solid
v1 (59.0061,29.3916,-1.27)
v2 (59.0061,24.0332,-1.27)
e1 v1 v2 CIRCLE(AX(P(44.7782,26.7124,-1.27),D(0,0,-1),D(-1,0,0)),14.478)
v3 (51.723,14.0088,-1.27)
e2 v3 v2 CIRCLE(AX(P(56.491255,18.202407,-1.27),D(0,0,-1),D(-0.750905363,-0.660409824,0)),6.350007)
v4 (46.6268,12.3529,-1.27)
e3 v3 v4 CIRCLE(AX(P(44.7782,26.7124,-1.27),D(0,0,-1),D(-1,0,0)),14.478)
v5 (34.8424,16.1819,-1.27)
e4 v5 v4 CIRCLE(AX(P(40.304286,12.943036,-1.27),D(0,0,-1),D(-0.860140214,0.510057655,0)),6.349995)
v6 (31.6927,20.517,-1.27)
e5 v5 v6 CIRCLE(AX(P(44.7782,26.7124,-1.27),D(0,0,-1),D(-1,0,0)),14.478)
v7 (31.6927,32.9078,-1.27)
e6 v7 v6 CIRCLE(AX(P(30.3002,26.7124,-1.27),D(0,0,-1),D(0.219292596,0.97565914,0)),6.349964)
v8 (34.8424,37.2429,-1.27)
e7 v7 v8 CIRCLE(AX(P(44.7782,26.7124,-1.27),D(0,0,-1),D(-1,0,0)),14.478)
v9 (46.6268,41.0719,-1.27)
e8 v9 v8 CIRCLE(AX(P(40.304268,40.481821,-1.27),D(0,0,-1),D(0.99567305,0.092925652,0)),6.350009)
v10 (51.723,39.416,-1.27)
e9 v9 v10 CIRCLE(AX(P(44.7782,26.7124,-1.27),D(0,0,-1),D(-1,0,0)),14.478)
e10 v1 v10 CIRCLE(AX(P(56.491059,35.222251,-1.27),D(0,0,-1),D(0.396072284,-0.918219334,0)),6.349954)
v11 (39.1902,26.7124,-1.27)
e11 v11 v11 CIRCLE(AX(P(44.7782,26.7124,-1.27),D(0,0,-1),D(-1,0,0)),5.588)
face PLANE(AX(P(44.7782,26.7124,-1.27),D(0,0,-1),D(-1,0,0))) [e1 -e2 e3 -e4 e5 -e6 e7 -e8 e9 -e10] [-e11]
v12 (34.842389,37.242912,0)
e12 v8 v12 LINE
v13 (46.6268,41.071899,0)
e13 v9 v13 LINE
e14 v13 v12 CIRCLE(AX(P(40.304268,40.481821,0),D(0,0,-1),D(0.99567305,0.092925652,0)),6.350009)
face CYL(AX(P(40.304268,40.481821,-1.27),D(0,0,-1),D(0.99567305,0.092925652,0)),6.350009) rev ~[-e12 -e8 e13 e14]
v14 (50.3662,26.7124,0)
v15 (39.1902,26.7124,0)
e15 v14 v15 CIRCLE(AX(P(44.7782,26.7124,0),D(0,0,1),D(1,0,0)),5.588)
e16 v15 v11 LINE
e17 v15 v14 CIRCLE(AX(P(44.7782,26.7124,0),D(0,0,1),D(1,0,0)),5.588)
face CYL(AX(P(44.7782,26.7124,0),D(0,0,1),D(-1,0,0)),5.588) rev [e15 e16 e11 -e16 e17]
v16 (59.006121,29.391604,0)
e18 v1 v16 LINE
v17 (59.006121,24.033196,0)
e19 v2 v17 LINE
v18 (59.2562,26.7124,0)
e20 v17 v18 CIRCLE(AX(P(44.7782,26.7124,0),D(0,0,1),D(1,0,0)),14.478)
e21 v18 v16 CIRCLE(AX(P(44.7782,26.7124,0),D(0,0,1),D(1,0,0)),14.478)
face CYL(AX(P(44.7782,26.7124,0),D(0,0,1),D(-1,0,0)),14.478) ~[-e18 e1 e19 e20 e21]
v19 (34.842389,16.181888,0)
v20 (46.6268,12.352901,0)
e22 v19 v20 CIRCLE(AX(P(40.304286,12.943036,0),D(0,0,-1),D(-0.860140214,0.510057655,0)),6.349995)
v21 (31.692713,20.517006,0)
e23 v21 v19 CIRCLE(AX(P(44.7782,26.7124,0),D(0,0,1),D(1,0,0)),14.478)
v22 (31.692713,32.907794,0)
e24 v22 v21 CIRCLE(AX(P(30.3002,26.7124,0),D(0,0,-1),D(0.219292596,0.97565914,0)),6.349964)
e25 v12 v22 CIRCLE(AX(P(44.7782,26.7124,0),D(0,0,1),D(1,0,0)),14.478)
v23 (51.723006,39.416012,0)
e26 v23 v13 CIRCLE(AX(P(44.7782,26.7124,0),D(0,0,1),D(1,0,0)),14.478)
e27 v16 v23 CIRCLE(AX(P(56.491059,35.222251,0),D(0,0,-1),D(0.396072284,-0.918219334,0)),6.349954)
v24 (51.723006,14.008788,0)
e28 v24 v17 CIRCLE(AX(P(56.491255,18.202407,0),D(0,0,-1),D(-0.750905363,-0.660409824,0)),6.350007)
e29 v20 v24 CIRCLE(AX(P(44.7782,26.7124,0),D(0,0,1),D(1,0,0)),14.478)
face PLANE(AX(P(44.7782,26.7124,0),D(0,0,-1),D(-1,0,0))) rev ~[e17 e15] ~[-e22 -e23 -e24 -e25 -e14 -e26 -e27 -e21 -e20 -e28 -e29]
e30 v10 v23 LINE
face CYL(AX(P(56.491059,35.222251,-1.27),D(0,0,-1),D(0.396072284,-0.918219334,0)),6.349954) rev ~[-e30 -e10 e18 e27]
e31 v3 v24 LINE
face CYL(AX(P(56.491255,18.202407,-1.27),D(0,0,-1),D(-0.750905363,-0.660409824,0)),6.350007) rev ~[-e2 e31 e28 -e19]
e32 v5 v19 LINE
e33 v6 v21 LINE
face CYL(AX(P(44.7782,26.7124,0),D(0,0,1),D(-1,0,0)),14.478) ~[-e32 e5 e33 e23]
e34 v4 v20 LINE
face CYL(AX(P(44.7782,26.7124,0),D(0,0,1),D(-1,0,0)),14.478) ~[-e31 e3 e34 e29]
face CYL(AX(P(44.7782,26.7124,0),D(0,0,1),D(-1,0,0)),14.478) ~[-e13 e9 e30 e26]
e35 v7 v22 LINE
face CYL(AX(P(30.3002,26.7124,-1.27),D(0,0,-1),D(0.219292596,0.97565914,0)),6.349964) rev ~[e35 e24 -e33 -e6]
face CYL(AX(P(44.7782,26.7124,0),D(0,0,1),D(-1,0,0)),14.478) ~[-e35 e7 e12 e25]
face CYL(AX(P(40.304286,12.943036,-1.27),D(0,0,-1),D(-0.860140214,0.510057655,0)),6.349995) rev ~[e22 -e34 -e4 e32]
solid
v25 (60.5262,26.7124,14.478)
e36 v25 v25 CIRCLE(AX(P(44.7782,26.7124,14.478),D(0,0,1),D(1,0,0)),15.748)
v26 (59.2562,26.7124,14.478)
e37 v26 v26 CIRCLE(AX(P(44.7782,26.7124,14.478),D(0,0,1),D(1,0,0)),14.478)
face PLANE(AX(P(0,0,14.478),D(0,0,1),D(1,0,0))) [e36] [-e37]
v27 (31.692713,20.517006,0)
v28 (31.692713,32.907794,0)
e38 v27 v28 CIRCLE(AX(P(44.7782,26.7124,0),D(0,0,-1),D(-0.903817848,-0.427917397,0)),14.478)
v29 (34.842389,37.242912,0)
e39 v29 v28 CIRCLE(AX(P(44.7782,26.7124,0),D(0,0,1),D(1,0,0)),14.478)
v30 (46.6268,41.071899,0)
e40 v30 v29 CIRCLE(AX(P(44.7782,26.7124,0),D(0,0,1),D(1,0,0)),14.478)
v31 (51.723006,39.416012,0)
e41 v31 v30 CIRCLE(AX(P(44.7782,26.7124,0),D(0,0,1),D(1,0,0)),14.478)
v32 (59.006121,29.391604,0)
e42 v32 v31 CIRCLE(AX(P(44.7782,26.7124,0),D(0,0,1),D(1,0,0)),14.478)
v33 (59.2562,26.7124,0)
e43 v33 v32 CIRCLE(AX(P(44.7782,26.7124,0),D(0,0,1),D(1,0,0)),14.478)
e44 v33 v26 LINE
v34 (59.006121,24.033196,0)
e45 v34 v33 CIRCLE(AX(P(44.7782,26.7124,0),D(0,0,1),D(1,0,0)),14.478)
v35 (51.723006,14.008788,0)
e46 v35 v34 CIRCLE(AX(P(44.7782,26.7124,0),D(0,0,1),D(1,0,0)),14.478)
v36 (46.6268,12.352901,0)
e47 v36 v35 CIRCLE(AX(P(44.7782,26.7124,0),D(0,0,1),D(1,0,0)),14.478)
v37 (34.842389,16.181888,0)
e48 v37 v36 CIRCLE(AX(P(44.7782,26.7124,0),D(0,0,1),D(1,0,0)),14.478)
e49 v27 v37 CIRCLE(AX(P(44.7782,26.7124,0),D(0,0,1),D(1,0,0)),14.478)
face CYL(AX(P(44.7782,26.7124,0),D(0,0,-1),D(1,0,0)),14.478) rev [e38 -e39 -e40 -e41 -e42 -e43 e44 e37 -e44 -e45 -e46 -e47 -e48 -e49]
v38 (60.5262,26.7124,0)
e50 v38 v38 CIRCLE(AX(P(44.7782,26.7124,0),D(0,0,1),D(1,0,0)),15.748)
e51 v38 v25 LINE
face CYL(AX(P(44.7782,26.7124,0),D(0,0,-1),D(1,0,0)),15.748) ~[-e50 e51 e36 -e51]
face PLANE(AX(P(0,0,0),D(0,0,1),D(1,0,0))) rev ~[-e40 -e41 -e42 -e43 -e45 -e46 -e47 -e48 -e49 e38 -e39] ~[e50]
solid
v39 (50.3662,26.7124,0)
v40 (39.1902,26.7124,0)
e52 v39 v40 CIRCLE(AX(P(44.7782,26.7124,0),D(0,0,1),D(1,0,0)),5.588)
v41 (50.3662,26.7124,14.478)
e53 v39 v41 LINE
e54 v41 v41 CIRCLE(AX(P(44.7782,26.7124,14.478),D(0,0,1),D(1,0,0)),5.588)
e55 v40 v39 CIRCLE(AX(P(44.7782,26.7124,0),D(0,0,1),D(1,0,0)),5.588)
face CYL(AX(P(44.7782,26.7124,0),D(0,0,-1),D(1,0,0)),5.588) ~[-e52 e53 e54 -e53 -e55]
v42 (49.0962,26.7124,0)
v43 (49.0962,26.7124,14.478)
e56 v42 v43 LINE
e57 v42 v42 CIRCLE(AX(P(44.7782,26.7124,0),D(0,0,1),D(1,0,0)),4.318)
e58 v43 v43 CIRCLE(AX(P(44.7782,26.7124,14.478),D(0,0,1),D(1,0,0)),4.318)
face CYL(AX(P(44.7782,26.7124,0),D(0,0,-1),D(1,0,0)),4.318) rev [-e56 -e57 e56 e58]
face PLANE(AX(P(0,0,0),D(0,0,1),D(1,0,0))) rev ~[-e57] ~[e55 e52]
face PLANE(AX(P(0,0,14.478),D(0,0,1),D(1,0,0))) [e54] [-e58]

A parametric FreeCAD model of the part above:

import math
import FreeCAD as App
import Part
import Sketcher

V = App.Vector
Q = App.Units.Quantity

doc = App.newDocument("Part")
body = doc.addObject("PartDesign::Body", "Body")
body.AllowCompound = True

sketch1 = body.newObject("Sketcher::SketchObject", "Sketch")
sketch1.AttachmentSupport = (doc.getObject("XY_Plane"), [""])
sketch1.MapMode = "FlatFace"
sketch1.addGeometry([
    Part.Circle(V(44.7782, 26.7124, 0), V(0, 0, 1), 15.748),
    Part.Circle(V(44.7782, 26.7124, 0), V(0, 0, 1), 14.478),
    Part.Circle(V(44.7782, 26.7124, 0), V(0, 0, 1), 5.588),
    Part.Circle(V(44.7782, 26.7124, 0), V(0, 0, 1), 4.318),
], False)
sketch1.addConstraint([
    Sketcher.Constraint("Coincident", 1, 3, 0, 3),
    Sketcher.Constraint("Coincident", 2, 3, 0, 3),
    Sketcher.Constraint("Coincident", 3, 3, 0, 3),
    Sketcher.Constraint("Diameter", 2, Q("0.44 in")),
    Sketcher.Constraint("Diameter", 0, Q("1.24 in")),
    Sketcher.Constraint("Diameter", 1, Q("1.14 in")),
    Sketcher.Constraint("Diameter", 3, Q("0.34 in")),
    Sketcher.Constraint("DistanceX", -1, 1, 0, 3, 44.7782),
    Sketcher.Constraint("DistanceY", -1, 1, 0, 3, 26.7124),
])
pad1 = body.newObject("PartDesign::Pad", "Pad")
pad1.Profile = sketch1
pad1.Length = Q("0.57 in")

sketch2 = body.newObject("Sketcher::SketchObject", "Sketch001")
sketch2.AttachmentSupport = (doc.getObject("XY_Plane"), [""])
sketch2.MapMode = "FlatFace"
sketch2.addGeometry([
    Part.Circle(V(44.7782, 26.7124, 0), V(0, 0, 1), 14.478),
    Part.Circle(V(44.7782, 26.7124, 0), V(0, 0, 1), 5.588),
], False)
sketch2.addConstraint([
    Sketcher.Constraint("Coincident", 1, 3, 0, 3),
    Sketcher.Constraint("Diameter", 0, Q("1.14 in")),
    Sketcher.Constraint("Diameter", 1, Q("0.44 in")),
    Sketcher.Constraint("DistanceX", -1, 1, 0, 3, 44.7782),
    Sketcher.Constraint("DistanceY", -1, 1, 0, 3, 26.7124),
])
pad2 = body.newObject("PartDesign::Pad", "Pad001")
pad2.Profile = sketch2
pad2.Length = Q("0.05 in")
pad2.Reversed = True

sketch3 = body.newObject("Sketcher::SketchObject", "Sketch002")
sketch3.AttachmentSupport = (doc.getObject("XY_Plane"), [""])
sketch3.MapMode = "FlatFace"
sketch3.AttachmentOffset = App.Placement(V(0, 0, -0.05 * 25.4), App.Rotation())
sketch3.addGeometry([
    Part.ArcOfCircle(Part.Circle(V(44.7782, 26.7124, 0), V(0, 0, 1), 14.478), math.radians(154.664535), math.radians(205.335465)),
    Part.ArcOfCircle(Part.Circle(V(30.3002, 26.7124, 0), V(0, 0, 1), 6.349964), math.radians(-77.332513), math.radians(77.332513)),
    Part.ArcOfCircle(Part.Circle(V(40.3043, 40.4818, 0), V(0, 0, 1), 6.349978), math.radians(-149.332111), math.radians(5.332159)),
    Part.ArcOfCircle(Part.Circle(V(44.7782, 26.7124, 0), V(0, 0, 1), 14.478), math.radians(82.664257), math.radians(133.335595)),
    Part.ArcOfCircle(Part.Circle(V(44.7782, 26.7124, 0), V(0, 0, 1), 14.478), math.radians(-133.335595), math.radians(-82.664257)),
    Part.ArcOfCircle(Part.Circle(V(40.3043, 12.943, 0), V(0, 0, 1), 6.350026), math.radians(-5.332159), math.radians(149.332111)),
    Part.ArcOfCircle(Part.Circle(V(56.4911, 35.2224, 0), V(0, 0, 1), 6.350075), math.radians(138.667992), math.radians(293.331994)),
    Part.ArcOfCircle(Part.Circle(V(44.7782, 26.7124, 0), V(0, 0, 1), 14.478), math.radians(10.664265), math.radians(61.335469)),
    Part.ArcOfCircle(Part.Circle(V(44.7782, 26.7124, 0), V(0, 0, 1), 14.478), math.radians(-61.335469), math.radians(-10.664265)),
    Part.ArcOfCircle(Part.Circle(V(56.4911, 18.2024, 0), V(0, 0, 1), 6.349887), math.radians(66.668006), math.radians(221.332008)),
], False)
sketch3.addConstraint([
    Sketcher.Constraint("Coincident", 0, 1, 1, 2),
    Sketcher.Constraint("Coincident", 1, 1, 0, 2),
    Sketcher.Constraint("Coincident", 2, 1, 3, 2),
    Sketcher.Constraint("Coincident", 3, 1, 2, 2),
    Sketcher.Constraint("Coincident", 4, 1, 5, 2),
    Sketcher.Constraint("Coincident", 5, 1, 4, 2),
    Sketcher.Constraint("Coincident", 6, 1, 7, 2),
    Sketcher.Constraint("Coincident", 7, 1, 6, 2),
    Sketcher.Constraint("Coincident", 8, 1, 9, 2),
    Sketcher.Constraint("Coincident", 9, 1, 8, 2),
    Sketcher.Constraint("Coincident", 3, 3, 0, 3),
    Sketcher.Constraint("Coincident", 4, 3, 0, 3),
    Sketcher.Constraint("Coincident", 7, 3, 0, 3),
    Sketcher.Constraint("Coincident", 8, 3, 0, 3),
    Sketcher.Constraint("Equal", 1, 2),
    Sketcher.Constraint("Equal", 0, 3),
    Sketcher.Constraint("Equal", 3, 4),
    Sketcher.Constraint("Equal", 2, 5),
    Sketcher.Constraint("Equal", 5, 6),
    Sketcher.Constraint("Equal", 4, 7),
    Sketcher.Constraint("Equal", 7, 8),
    Sketcher.Constraint("Equal", 6, 9),
    Sketcher.Constraint("Horizontal", 0, 3, 1, 3),
    Sketcher.Constraint("Vertical", 2, 3, 5, 3),
    Sketcher.Constraint("Vertical", 6, 3, 9, 3),
    Sketcher.Constraint("Vertical", 2, 1, 4, 1),
    Sketcher.Constraint("Vertical", 6, 1, 8, 1),
    Sketcher.Constraint("Radius", 1, Q("0.25 in")),
    Sketcher.Constraint("Radius", 0, Q("0.57 in")),
    Sketcher.Constraint("DistanceX", 1, 3, 0, 3, Q("0.57 in")),
    Sketcher.Constraint("DistanceY", -1, 1, 3, 1, Q("1.617 in")),
    Sketcher.Constraint("DistanceX", 0, 1, 2, 1, Q("0.124 in")),
    Sketcher.Constraint("DistanceY", -1, 1, 6, 3, Q("1.3867 in")),
    Sketcher.Constraint("DistanceX", -1, 1, 3, 1, Q("1.8357 in")),
    Sketcher.Constraint("DistanceY", 0, 3, 2, 3, Q("0.5421 in")),
    Sketcher.Constraint("DistanceY", 6, 3, 6, 1, Q("0.1651 in")),
])
pocket1 = body.newObject("PartDesign::Pocket", "Pocket")
pocket1.Profile = sketch3
pocket1.Type = "ThroughAll"
pocket1.Reversed = True

doc.recompute()
